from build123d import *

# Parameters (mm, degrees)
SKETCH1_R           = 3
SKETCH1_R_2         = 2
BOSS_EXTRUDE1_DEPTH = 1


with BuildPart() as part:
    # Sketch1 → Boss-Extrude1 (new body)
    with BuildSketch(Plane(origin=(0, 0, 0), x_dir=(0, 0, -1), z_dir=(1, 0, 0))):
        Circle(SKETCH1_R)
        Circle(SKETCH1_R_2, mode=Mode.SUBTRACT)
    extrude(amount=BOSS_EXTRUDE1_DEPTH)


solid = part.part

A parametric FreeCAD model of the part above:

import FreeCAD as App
import Part
import Sketcher
from FreeCAD import Vector
Q = App.Units.Quantity

doc = App.newDocument("Part")
body = doc.addObject("PartDesign::Body", "Body")

# Sketch on YZ plane
sketch1 = body.newObject("Sketcher::SketchObject", "Sketch")
sketch1.AttachmentSupport = (doc.getObject("YZ_Plane"), [""])
sketch1.MapMode = "FlatFace"
sketch1.addGeometry(Part.Circle(Vector(0, 0, 0), Vector(0, 0, 1), 3), False)
sketch1.addGeometry(Part.Circle(Vector(0, 0, 0), Vector(0, 0, 1), 2), False)
sketch1.addConstraint(Sketcher.Constraint("Coincident", 0, 3, -1, 1))
sketch1.addConstraint(Sketcher.Constraint("Coincident", 1, 3, -1, 1))
sketch1.addConstraint(Sketcher.Constraint("Diameter", 0, Q("6 mm")))
sketch1.addConstraint(Sketcher.Constraint("Diameter", 1, Q("4 mm")))
pad1 = body.newObject("PartDesign::Pad", "Pad")
pad1.Profile = sketch1
pad1.Length = 1

doc.recompute()
